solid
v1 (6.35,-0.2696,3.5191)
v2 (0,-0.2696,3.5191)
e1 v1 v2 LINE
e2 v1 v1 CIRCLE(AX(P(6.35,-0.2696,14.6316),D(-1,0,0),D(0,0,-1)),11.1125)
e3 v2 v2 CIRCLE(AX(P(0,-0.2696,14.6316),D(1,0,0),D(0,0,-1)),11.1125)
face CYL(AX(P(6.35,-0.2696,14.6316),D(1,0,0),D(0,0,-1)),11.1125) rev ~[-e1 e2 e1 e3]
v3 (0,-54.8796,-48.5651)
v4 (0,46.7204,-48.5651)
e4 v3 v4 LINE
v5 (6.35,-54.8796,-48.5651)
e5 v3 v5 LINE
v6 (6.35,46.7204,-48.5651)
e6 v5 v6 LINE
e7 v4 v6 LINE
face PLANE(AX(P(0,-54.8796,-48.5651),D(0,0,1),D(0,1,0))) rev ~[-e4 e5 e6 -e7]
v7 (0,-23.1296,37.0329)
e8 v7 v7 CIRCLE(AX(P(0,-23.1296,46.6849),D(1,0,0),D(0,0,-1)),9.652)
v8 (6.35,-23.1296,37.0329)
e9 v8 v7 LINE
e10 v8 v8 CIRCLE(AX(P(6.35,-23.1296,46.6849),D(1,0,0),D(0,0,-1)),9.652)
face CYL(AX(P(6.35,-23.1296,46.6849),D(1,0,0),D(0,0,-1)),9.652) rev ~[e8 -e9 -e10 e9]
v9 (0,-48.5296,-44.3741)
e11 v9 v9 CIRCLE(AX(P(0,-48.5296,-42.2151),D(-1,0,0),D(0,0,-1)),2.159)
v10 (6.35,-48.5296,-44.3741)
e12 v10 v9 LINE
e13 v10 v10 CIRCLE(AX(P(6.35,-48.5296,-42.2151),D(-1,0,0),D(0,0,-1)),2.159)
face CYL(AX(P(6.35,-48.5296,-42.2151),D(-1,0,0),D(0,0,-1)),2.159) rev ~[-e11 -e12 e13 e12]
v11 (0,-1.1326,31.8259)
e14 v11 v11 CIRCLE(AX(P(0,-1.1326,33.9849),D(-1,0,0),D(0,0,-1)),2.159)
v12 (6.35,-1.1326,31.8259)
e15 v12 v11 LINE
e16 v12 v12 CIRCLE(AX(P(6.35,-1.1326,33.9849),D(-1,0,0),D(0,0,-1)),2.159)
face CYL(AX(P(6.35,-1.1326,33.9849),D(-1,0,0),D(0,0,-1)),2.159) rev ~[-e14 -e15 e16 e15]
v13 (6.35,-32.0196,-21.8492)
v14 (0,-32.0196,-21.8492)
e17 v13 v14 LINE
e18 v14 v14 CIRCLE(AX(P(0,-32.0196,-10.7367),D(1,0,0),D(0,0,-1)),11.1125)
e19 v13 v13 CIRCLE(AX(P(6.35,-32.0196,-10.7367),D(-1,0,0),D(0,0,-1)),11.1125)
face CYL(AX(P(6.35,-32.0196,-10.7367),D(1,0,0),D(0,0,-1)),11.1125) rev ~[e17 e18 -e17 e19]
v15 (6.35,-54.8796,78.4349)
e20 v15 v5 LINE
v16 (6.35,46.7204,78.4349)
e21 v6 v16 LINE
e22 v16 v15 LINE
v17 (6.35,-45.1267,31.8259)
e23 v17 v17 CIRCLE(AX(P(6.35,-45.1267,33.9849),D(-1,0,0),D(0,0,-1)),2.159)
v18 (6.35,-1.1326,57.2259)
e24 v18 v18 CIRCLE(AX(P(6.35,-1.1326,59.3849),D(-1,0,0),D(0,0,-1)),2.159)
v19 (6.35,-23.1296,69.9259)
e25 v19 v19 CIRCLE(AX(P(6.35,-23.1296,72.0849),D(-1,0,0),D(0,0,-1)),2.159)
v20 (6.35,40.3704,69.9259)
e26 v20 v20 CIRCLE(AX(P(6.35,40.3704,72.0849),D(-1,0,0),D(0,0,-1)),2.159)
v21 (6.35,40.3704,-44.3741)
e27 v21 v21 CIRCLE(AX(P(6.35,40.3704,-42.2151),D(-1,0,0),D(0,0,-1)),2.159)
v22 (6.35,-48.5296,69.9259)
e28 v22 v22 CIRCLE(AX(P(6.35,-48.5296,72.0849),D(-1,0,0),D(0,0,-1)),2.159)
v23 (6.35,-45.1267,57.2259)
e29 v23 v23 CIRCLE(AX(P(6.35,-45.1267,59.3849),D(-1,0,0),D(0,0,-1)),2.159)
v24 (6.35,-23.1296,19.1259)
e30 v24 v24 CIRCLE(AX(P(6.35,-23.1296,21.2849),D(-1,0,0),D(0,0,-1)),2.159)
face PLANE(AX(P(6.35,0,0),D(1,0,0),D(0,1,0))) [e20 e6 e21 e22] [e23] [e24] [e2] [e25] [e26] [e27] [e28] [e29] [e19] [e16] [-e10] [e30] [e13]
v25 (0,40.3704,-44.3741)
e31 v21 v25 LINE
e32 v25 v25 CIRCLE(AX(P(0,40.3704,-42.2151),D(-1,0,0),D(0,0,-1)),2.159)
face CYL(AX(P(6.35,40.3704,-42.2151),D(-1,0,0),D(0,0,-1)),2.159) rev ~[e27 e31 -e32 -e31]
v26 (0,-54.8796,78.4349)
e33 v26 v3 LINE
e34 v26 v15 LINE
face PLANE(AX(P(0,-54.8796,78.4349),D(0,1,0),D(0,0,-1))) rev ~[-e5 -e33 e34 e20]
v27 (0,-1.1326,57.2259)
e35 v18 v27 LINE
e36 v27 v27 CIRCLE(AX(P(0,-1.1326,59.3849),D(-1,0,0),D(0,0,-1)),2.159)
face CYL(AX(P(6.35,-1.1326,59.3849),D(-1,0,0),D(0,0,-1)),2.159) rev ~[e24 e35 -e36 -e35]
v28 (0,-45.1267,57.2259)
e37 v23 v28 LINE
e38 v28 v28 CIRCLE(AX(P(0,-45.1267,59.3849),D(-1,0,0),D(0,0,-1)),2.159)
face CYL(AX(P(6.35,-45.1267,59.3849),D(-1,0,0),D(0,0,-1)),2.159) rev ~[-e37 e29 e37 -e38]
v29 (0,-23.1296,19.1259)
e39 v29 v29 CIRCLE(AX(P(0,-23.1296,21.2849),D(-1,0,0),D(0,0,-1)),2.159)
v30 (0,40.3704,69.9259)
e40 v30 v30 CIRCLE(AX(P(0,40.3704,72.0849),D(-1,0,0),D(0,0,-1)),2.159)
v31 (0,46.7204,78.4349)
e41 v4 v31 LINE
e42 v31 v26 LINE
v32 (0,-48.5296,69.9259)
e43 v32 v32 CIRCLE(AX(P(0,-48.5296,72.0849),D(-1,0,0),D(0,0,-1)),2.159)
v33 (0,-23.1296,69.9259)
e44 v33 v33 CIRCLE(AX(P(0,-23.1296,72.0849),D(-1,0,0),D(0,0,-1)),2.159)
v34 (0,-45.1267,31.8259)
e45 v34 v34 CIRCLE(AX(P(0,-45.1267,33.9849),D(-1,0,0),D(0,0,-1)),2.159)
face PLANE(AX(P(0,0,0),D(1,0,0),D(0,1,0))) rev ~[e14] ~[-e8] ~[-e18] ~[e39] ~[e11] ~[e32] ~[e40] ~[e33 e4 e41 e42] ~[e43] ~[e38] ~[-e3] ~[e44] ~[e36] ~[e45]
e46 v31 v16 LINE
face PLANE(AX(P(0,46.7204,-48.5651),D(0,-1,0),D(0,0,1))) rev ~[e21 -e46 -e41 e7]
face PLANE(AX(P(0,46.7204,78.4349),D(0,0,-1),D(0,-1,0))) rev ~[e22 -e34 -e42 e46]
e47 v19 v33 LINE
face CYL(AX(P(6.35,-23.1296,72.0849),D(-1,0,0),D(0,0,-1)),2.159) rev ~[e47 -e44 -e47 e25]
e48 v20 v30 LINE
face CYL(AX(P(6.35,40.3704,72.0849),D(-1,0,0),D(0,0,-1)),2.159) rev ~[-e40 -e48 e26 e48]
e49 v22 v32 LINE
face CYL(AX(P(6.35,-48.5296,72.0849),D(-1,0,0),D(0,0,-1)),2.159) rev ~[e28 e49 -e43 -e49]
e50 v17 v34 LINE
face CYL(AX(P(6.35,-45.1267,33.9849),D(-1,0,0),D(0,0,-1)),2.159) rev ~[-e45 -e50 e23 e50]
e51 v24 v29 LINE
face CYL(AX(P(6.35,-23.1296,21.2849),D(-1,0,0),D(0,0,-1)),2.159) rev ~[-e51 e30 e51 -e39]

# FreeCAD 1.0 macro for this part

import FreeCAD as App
import Part
import Sketcher
Q = App.Units.Quantity

doc = App.newDocument("Part")
params = doc.addObject("Spreadsheet::Sheet", "Params")
for row, (alias, value) in enumerate([
    ("sketch1_width", "4 in"),
    ("sketch1_height", "5 in"),
    ("pad1_length", "0.25 in"),
    ("sketch2_diameter", "0.17 in"),
    ("hole_diameter", "0.17 in"),
    ("sketch3_diameter", "0.76 in"),
    ("pocket1_length", "2.4375 in"),
    ("sketch4_diameter", "0.17 in"),
    ("hole2_diameter", "0.17 in"),
    ("sketch5_diameter", "0.875 in"),
    ("pocket2_length", "2.625 in"),
    ("sketch6_diameter", "0.875 in"),
    ("pocket3_length", "1.5625 in"),
], start=1):
    params.set(f"A{row}", alias)
    params.set(f"B{row}", "=" + value)
    params.setAlias(f"B{row}", alias)

body = doc.addObject("PartDesign::Body", "Body")

sketch1 = body.newObject("Sketcher::SketchObject", "Sketch")
sketch1.AttachmentSupport = (doc.getObject("YZ_Plane"), [""])
sketch1.MapMode = "FlatFace"
sketch1.addGeometry([
    Part.LineSegment(App.Vector(46.7204, -48.5651, 0), App.Vector(46.7204, 78.4349, 0)),
    Part.LineSegment(App.Vector(46.7204, 78.4349, 0), App.Vector(-54.8796, 78.4349, 0)),
    Part.LineSegment(App.Vector(-54.8796, 78.4349, 0), App.Vector(-54.8796, -48.5651, 0)),
    Part.LineSegment(App.Vector(-54.8796, -48.5651, 0), App.Vector(46.7204, -48.5651, 0)),
], False)
sketch1.addConstraint([
    Sketcher.Constraint("Coincident", 0, 2, 1, 1),
    Sketcher.Constraint("Coincident", 1, 2, 2, 1),
    Sketcher.Constraint("Coincident", 2, 2, 3, 1),
    Sketcher.Constraint("Coincident", 3, 2, 0, 1),
    Sketcher.Constraint("Vertical", 0),
    Sketcher.Constraint("Horizontal", 1),
    Sketcher.Constraint("Vertical", 2),
    Sketcher.Constraint("Horizontal", 3),
    Sketcher.Constraint("DistanceX", 1, 2, 1, 1, Q("4 in")),
    Sketcher.Constraint("DistanceY", 0, 1, 0, 2, Q("5 in")),
    Sketcher.Constraint("DistanceY", -1, 1, 0, 2, Q("3.088 in")),
    Sketcher.Constraint("DistanceX", -1, 1, 0, 2, 46.7204),
])
sketch1.setExpression("Constraints[8]", "Params.sketch1_width")
sketch1.setExpression("Constraints[9]", "Params.sketch1_height")
pad1 = body.newObject("PartDesign::Pad", "Pad")
pad1.Profile = sketch1
pad1.setExpression("Length", "Params.pad1_length")

sketch2 = body.newObject("Sketcher::SketchObject", "Sketch001")
sketch2.AttachmentSupport = (doc.getObject("YZ_Plane"), [""])
sketch2.MapMode = "FlatFace"
sketch2.AttachmentOffset = App.Placement(App.Vector(0, 0, 0.25 * 25.4), App.Rotation())
sketch2.addGeometry([
    Part.Circle(App.Vector(40.3704, 72.0849, 0), App.Vector(0, 0, 1), 2.159),
    Part.Circle(App.Vector(40.3704, -42.2151, 0), App.Vector(0, 0, 1), 2.159),
    Part.Circle(App.Vector(-48.5296, -42.2151, 0), App.Vector(0, 0, 1), 2.159),
    Part.Circle(App.Vector(-48.5296, 72.0849, 0), App.Vector(0, 0, 1), 2.159),
], False)
sketch2.addConstraint([
    Sketcher.Constraint("Equal", 0, 1),
    Sketcher.Constraint("Equal", 1, 2),
    Sketcher.Constraint("Equal", 2, 3),
    Sketcher.Constraint("Horizontal", 1, 3, 2, 3),
    Sketcher.Constraint("Horizontal", 0, 3, 3, 3),
    Sketcher.Constraint("Vertical", 0, 3, 1, 3),
    Sketcher.Constraint("Vertical", 2, 3, 3, 3),
    Sketcher.Constraint("Diameter", 0, Q("0.17 in")),
    Sketcher.Constraint("DistanceY", 1, 3, 0, 3, Q("4.5 in")),
    Sketcher.Constraint("DistanceX", 2, 3, 1, 3, Q("3.5 in")),
    Sketcher.Constraint("DistanceY", -1, 1, 0, 3, Q("2.838 in")),
    Sketcher.Constraint("DistanceX", -1, 1, 0, 3, 40.3704),
])
sketch2.setExpression("Constraints[7]", "Params.sketch2_diameter")
doc.recompute()
hole = body.newObject("PartDesign::Hole", "Hole")
hole.Profile = sketch2
hole.ThreadType = "None"
hole.setExpression("Diameter", "Params.hole_diameter")
hole.DepthType = "ThroughAll"

sketch3 = body.newObject("Sketcher::SketchObject", "Sketch002")
sketch3.AttachmentSupport = (doc.getObject("YZ_Plane"), [""])
sketch3.MapMode = "FlatFace"
sketch3.AttachmentOffset = App.Placement(App.Vector(0, 0, 0.25 * 25.4), App.Rotation())
sketch3.addGeometry(Part.Circle(App.Vector(-23.1296, 46.6849, 0), App.Vector(0, 0, 1), 9.652), False)
sketch3.addConstraint([
    Sketcher.Constraint("Diameter", 0, Q("0.76 in")),
    Sketcher.Constraint("DistanceY", -1, 1, 0, 3, Q("1.838 in")),
    Sketcher.Constraint("DistanceX", 0, 3, -1, 1, 23.1296),
])
sketch3.setExpression("Constraints[0]", "Params.sketch3_diameter")
pocket1 = body.newObject("PartDesign::Pocket", "Pocket")
pocket1.Profile = sketch3
pocket1.setExpression("Length", "Params.pocket1_length")

sketch4 = body.newObject("Sketcher::SketchObject", "Sketch003")
sketch4.AttachmentSupport = (doc.getObject("YZ_Plane"), [""])
sketch4.MapMode = "FlatFace"
sketch4.AttachmentOffset = App.Placement(App.Vector(0, 0, 0.25 * 25.4), App.Rotation())
sketch4.addGeometry([
    Part.Circle(App.Vector(-23.1296, 72.0849, 0), App.Vector(0, 0, 1), 2.159),
    Part.Circle(App.Vector(-23.1296, 21.2849, 0), App.Vector(0, 0, 1), 2.159),
    Part.Circle(App.Vector(-1.1326, 59.3849, 0), App.Vector(0, 0, 1), 2.159),
    Part.Circle(App.Vector(-1.1326, 33.9849, 0), App.Vector(0, 0, 1), 2.159),
    Part.Circle(App.Vector(-45.1267, 33.9849, 0), App.Vector(0, 0, 1), 2.159),
    Part.Circle(App.Vector(-45.1267, 59.3849, 0), App.Vector(0, 0, 1), 2.159),
], False)
sketch4.addConstraint([
    Sketcher.Constraint("Equal", 0, 1),
    Sketcher.Constraint("Equal", 1, 2),
    Sketcher.Constraint("Equal", 2, 3),
    Sketcher.Constraint("Equal", 3, 4),
    Sketcher.Constraint("Equal", 4, 5),
    Sketcher.Constraint("Horizontal", 3, 3, 4, 3),
    Sketcher.Constraint("Horizontal", 2, 3, 5, 3),
    Sketcher.Constraint("Vertical", 0, 3, 1, 3),
    Sketcher.Constraint("Vertical", 2, 3, 3, 3),
    Sketcher.Constraint("Vertical", 4, 3, 5, 3),
    Sketcher.Constraint("Diameter", 0, Q("0.17 in")),
    Sketcher.Constraint("DistanceY", 1, 3, 0, 3, Q("2 in")),
    Sketcher.Constraint("DistanceY", 3, 3, 2, 3, Q("1 in")),
    Sketcher.Constraint("DistanceY", 2, 3, 0, 3, Q("0.5 in")),
    Sketcher.Constraint("DistanceY", -1, 1, 0, 3, Q("2.838 in")),
    Sketcher.Constraint("DistanceX", 2, 3, -1, 1, Q("0.0446 in")),
    Sketcher.Constraint("DistanceX", 0, 3, -1, 1, 23.1296),
    Sketcher.Constraint("DistanceX", 4, 3, -1, 1, 45.1267),
])
sketch4.setExpression("Constraints[10]", "Params.sketch4_diameter")
doc.recompute()
hole2 = body.newObject("PartDesign::Hole", "Hole001")
hole2.Profile = sketch4
hole2.ThreadType = "None"
hole2.setExpression("Diameter", "Params.hole2_diameter")
hole2.DepthType = "ThroughAll"

sketch5 = body.newObject("Sketcher::SketchObject", "Sketch004")
sketch5.AttachmentSupport = (doc.getObject("YZ_Plane"), [""])
sketch5.MapMode = "FlatFace"
sketch5.AttachmentOffset = App.Placement(App.Vector(0, 0, 0.25 * 25.4), App.Rotation())
sketch5.addGeometry(Part.Circle(App.Vector(-0.2696, 14.6316, 0), App.Vector(0, 0, 1), 11.1125), False)
sketch5.addConstraint([
    Sketcher.Constraint("Diameter", 0, Q("0.875 in")),
    Sketcher.Constraint("DistanceX", 0, 3, -1, 1, 0.2696),
    Sketcher.Constraint("DistanceY", -1, 1, 0, 3, 14.6316),
])
sketch5.setExpression("Constraints[0]", "Params.sketch5_diameter")
pocket2 = body.newObject("PartDesign::Pocket", "Pocket001")
pocket2.Profile = sketch5
pocket2.setExpression("Length", "Params.pocket2_length")

sketch6 = body.newObject("Sketcher::SketchObject", "Sketch005")
sketch6.AttachmentSupport = (doc.getObject("YZ_Plane"), [""])
sketch6.MapMode = "FlatFace"
sketch6.AttachmentOffset = App.Placement(App.Vector(0, 0, 0.25 * 25.4), App.Rotation())
sketch6.addGeometry(Part.Circle(App.Vector(-32.0196, -10.7367, 0), App.Vector(0, 0, 1), 11.1125), False)
sketch6.addConstraint([
    Sketcher.Constraint("Diameter", 0, Q("0.875 in")),
    Sketcher.Constraint("DistanceY", 0, 3, -1, 1, Q("0.4227 in")),
    Sketcher.Constraint("DistanceX", 0, 3, -1, 1, 32.0196),
])
sketch6.setExpression("Constraints[0]", "Params.sketch6_diameter")
pocket3 = body.newObject("PartDesign::Pocket", "Pocket002")
pocket3.Profile = sketch6
pocket3.setExpression("Length", "Params.pocket3_length")

doc.recompute()
